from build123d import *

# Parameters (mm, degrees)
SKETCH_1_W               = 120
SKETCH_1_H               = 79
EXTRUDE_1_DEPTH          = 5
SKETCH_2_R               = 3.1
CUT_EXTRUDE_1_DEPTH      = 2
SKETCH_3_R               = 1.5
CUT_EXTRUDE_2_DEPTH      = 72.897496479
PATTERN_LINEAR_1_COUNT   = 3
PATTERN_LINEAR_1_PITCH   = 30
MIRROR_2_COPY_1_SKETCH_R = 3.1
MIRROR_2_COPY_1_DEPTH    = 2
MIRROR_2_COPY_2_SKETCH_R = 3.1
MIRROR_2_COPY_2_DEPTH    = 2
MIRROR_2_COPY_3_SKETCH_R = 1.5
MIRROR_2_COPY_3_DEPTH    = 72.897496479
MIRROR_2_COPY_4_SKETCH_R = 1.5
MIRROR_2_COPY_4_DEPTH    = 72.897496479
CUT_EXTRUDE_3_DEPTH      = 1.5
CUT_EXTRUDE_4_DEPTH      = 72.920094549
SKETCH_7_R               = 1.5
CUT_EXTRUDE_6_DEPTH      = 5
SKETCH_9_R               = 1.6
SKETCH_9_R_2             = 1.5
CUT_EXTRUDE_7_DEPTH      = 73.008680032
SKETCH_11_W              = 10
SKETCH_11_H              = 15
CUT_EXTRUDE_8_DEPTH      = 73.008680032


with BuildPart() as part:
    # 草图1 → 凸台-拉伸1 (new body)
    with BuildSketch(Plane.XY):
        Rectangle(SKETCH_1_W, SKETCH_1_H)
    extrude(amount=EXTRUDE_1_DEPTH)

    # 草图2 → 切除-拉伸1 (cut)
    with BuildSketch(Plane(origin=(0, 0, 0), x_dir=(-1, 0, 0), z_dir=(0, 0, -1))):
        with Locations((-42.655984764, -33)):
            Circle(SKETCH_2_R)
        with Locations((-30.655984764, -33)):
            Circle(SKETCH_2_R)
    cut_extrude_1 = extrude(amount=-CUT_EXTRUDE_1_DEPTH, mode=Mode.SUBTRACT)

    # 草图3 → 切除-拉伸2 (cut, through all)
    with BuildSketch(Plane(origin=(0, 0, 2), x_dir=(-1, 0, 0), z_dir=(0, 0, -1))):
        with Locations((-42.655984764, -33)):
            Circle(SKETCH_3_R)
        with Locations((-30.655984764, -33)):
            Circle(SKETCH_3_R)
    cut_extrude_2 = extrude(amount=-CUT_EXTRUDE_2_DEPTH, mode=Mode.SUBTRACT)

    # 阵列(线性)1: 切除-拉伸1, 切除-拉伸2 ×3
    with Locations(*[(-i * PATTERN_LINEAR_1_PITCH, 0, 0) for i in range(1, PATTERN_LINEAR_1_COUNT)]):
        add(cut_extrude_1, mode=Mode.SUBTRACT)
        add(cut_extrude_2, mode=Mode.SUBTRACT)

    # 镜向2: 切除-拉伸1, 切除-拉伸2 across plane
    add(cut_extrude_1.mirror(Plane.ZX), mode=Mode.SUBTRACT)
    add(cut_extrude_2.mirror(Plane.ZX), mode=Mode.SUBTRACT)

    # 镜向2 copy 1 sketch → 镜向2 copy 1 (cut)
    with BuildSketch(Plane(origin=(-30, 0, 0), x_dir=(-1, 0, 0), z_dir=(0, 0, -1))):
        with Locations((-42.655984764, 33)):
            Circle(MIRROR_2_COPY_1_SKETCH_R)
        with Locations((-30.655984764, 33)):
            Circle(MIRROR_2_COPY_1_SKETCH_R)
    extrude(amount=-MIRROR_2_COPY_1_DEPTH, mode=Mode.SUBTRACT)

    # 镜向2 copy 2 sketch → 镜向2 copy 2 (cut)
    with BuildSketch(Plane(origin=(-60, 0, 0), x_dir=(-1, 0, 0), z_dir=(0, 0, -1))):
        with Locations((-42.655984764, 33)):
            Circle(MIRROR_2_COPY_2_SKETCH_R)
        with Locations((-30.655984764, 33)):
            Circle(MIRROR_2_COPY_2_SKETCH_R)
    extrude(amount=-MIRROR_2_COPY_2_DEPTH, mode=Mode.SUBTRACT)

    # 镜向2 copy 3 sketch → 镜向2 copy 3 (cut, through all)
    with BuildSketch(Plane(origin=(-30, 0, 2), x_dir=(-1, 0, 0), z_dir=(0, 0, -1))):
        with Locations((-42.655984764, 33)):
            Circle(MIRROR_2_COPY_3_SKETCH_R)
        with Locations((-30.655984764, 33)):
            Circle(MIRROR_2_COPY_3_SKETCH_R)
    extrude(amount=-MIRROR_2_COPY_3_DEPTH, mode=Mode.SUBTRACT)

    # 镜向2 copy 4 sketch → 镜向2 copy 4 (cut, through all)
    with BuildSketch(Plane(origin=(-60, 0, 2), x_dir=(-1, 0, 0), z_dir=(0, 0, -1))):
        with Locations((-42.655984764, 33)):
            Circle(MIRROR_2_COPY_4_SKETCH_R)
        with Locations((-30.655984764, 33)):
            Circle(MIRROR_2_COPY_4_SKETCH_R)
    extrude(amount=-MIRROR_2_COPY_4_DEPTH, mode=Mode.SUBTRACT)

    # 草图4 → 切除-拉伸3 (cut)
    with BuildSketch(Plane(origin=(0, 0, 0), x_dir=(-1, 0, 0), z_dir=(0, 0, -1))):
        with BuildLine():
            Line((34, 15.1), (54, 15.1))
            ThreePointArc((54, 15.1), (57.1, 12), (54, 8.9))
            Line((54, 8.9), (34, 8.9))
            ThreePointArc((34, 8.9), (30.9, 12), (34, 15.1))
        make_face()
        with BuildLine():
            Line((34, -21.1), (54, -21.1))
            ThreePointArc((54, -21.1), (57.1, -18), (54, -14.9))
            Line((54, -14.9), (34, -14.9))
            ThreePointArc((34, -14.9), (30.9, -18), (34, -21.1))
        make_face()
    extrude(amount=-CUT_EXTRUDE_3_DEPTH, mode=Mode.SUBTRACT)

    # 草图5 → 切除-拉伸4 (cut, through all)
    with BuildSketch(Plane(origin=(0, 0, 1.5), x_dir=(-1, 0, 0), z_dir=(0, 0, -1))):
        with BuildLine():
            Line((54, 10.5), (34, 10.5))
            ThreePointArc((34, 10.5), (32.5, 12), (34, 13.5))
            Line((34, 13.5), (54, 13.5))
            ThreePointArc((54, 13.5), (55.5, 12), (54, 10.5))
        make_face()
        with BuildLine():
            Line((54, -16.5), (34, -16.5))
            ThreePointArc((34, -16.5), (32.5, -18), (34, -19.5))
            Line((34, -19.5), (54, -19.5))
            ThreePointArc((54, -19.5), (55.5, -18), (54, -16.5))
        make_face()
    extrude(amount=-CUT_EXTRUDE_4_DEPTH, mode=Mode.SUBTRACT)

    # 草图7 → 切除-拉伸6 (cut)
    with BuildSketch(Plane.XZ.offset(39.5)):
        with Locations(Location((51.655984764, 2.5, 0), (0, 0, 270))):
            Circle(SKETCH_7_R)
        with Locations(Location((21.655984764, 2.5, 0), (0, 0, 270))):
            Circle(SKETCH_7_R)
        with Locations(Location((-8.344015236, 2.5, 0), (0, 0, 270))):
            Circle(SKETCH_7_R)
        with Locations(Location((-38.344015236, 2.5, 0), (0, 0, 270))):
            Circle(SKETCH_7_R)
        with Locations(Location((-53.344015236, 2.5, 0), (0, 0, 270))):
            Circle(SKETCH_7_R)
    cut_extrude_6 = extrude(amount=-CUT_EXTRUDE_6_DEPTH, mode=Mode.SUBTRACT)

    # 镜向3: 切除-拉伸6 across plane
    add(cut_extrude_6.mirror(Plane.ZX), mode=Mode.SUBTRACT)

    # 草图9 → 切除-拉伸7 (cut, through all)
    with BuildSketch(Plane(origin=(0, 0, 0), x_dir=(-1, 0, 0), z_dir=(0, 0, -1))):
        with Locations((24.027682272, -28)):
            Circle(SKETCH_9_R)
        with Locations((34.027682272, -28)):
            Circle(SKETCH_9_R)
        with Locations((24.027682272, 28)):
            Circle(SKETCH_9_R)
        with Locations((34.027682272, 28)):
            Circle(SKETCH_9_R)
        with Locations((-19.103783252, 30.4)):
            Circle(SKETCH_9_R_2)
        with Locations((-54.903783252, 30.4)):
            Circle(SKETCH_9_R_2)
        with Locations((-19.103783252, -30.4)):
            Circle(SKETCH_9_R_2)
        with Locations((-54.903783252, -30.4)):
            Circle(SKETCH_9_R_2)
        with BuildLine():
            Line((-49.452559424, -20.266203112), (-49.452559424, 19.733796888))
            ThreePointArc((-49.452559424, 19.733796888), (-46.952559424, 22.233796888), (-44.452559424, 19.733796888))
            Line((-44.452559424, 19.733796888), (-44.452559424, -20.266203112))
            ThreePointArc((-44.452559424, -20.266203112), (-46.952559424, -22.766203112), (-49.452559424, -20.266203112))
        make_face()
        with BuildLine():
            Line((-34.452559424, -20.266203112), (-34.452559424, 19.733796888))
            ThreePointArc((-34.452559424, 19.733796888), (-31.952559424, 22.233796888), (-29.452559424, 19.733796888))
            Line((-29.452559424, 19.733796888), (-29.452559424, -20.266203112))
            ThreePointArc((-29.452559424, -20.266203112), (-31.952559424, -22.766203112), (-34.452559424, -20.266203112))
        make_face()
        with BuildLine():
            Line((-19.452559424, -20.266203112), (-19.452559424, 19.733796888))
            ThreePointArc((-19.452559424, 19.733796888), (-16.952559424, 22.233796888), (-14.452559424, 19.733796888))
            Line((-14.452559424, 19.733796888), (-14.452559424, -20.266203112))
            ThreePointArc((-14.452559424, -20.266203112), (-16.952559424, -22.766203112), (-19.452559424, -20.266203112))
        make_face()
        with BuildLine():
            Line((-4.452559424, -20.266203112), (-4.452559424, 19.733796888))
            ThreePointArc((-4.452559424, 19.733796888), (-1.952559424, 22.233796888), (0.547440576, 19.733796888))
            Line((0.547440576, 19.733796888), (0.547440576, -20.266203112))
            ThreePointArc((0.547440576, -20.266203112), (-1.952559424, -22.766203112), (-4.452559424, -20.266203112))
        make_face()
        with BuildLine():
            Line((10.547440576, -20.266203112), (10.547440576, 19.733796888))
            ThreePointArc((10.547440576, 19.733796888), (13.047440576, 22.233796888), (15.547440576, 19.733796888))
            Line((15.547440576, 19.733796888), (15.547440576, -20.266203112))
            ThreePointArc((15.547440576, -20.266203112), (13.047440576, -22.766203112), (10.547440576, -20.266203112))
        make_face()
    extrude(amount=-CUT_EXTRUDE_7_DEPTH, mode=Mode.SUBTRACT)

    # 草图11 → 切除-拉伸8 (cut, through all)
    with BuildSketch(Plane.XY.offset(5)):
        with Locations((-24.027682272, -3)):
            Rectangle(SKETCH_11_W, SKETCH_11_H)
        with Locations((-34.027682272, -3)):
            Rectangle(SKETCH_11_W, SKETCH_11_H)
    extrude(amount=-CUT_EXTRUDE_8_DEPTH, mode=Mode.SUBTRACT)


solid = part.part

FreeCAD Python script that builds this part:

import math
import FreeCAD as App
import Part
import Sketcher

V = App.Vector
Q = App.Units.Quantity


def add_polygon(sketch, points):
    """Adds a closed chain of lines whose ends are joined by coincident constraints."""
    first, n = sketch.GeometryCount, len(points)
    for a, b in zip(points, points[1:] + points[:1]):
        sketch.addGeometry(Part.LineSegment(App.Vector(*a, 0), App.Vector(*b, 0)), False)
    for i in range(n):
        sketch.addConstraint(Sketcher.Constraint("Coincident", first + i, 2, first + (i + 1) % n, 1))

doc = App.newDocument("Part")
body = doc.addObject("PartDesign::Body", "Body")

# Sketch on XY plane
sketch1 = body.newObject("Sketcher::SketchObject", "Sketch")
sketch1.AttachmentSupport = (doc.getObject("XY_Plane"), [""])
sketch1.MapMode = "FlatFace"
add_polygon(sketch1, [(-60, 40), (-60, -40), (60, -40), (60, 40)])  # lines 0-3
sketch1.addConstraint(Sketcher.Constraint("Vertical", 0))
sketch1.addConstraint(Sketcher.Constraint("Horizontal", 1))
sketch1.addConstraint(Sketcher.Constraint("Vertical", 2))
sketch1.addConstraint(Sketcher.Constraint("Horizontal", 3))
sketch1.addConstraint(Sketcher.Constraint("Symmetric", 0, 2, 2, 2, -1, 1))
sketch1.addConstraint(Sketcher.Constraint("DistanceX", 1, 1, 1, 2, Q("120 mm")))
sketch1.addConstraint(Sketcher.Constraint("DistanceY", 0, 2, 0, 1, Q("79 mm")))
pad1 = body.newObject("PartDesign::Pad", "Pad")
pad1.Profile = sketch1
pad1.Length = 5

# Sketch on XY plane
sketch2 = body.newObject("Sketcher::SketchObject", "Sketch001")
sketch2.AttachmentSupport = (doc.getObject("XY_Plane"), [""])
sketch2.MapMode = "FlatFace"
sketch2.addGeometry(Part.Circle(V(42.7, -33, 0), V(0, 0, 1), 3.1), False)
sketch2.addGeometry(Part.Circle(V(30.7, -33, 0), V(0, 0, 1), 3.1), False)
sketch2.addConstraint(Sketcher.Constraint("Equal", 0, 1))
sketch2.addConstraint(Sketcher.Constraint("Horizontal", 0, 3, 1, 3))
sketch2.addConstraint(Sketcher.Constraint("Diameter", 0, Q("6.2 mm")))
sketch2.addConstraint(Sketcher.Constraint("DistanceY", 0, 3, -1, 1, Q("33 mm")))
sketch2.addConstraint(Sketcher.Constraint("DistanceX", 1, 3, 0, 3, Q("12 mm")))
sketch2.addConstraint(Sketcher.Constraint("DistanceX", -1, 1, 0, 3, Q("42.655985 mm")))
pocket1 = body.newObject("PartDesign::Pocket", "Pocket")
pocket1.Profile = sketch2
pocket1.Length = 2
pocket1.Reversed = True

# Sketch on XY plane
sketch3 = body.newObject("Sketcher::SketchObject", "Sketch002")
sketch3.AttachmentSupport = (doc.getObject("XY_Plane"), [""])
sketch3.MapMode = "FlatFace"
sketch3.AttachmentOffset = App.Placement(V(0, 0, 2), App.Rotation())
sketch3.addGeometry(Part.Circle(V(42.7, -33, 0), V(0, 0, 1), 1.5), False)
sketch3.addGeometry(Part.Circle(V(30.7, -33, 0), V(0, 0, 1), 1.5), False)
sketch3.addConstraint(Sketcher.Constraint("Equal", 0, 1))
sketch3.addConstraint(Sketcher.Constraint("Horizontal", 0, 3, 1, 3))
sketch3.addConstraint(Sketcher.Constraint("Diameter", 0, Q("3 mm")))
sketch3.addConstraint(Sketcher.Constraint("DistanceY", 0, 3, -1, 1, Q("33 mm")))
sketch3.addConstraint(Sketcher.Constraint("DistanceX", 1, 3, 0, 3, Q("12 mm")))
sketch3.addConstraint(Sketcher.Constraint("DistanceX", -1, 1, 0, 3, Q("42.655985 mm")))
pocket2 = body.newObject("PartDesign::Pocket", "Pocket001")
pocket2.Profile = sketch3
pocket2.Type = "ThroughAll"
pocket2.Reversed = True
doc.recompute()

linearpattern = body.newObject("PartDesign::LinearPattern", "LinearPattern")
linearpattern.Originals = [pocket1, pocket2]
linearpattern.Direction = (doc.getObject("X_Axis"), [""])
linearpattern.Mode = "offset"
linearpattern.Offset = 30
linearpattern.Occurrences = 3
linearpattern.Reversed = True
body.Tip = linearpattern
doc.recompute()

mirrored = body.newObject("PartDesign::Mirrored", "Mirrored")
mirrored.Originals = [pocket1, pocket2]
mirrored.MirrorPlane = (doc.getObject("XZ_Plane"), [""])
body.Tip = mirrored

# Sketch on XY plane
sketch4 = body.newObject("Sketcher::SketchObject", "Sketch003")
sketch4.AttachmentSupport = (doc.getObject("XY_Plane"), [""])
sketch4.MapMode = "FlatFace"
sketch4.addGeometry(Part.Circle(V(12.7, 33, 0), V(0, 0, 1), 3.1), False)
sketch4.addGeometry(Part.Circle(V(0.7, 33, 0), V(0, 0, 1), 3.1), False)
sketch4.addConstraint(Sketcher.Constraint("Equal", 0, 1))
sketch4.addConstraint(Sketcher.Constraint("Horizontal", 0, 3, 1, 3))
sketch4.addConstraint(Sketcher.Constraint("Diameter", 0, Q("6.2 mm")))
sketch4.addConstraint(Sketcher.Constraint("DistanceY", -1, 1, 0, 3, Q("33 mm")))
sketch4.addConstraint(Sketcher.Constraint("DistanceX", 1, 3, 0, 3, Q("12 mm")))
sketch4.addConstraint(Sketcher.Constraint("DistanceX", -1, 1, 0, 3, Q("12.655985 mm")))
pocket3 = body.newObject("PartDesign::Pocket", "Pocket002")
pocket3.Profile = sketch4
pocket3.Length = 2
pocket3.Reversed = True

# Sketch on XY plane
sketch5 = body.newObject("Sketcher::SketchObject", "Sketch004")
sketch5.AttachmentSupport = (doc.getObject("XY_Plane"), [""])
sketch5.MapMode = "FlatFace"
sketch5.addGeometry(Part.Circle(V(-17.3, 33, 0), V(0, 0, 1), 3.1), False)
sketch5.addGeometry(Part.Circle(V(-29.3, 33, 0), V(0, 0, 1), 3.1), False)
sketch5.addConstraint(Sketcher.Constraint("Equal", 0, 1))
sketch5.addConstraint(Sketcher.Constraint("Horizontal", 0, 3, 1, 3))
sketch5.addConstraint(Sketcher.Constraint("Diameter", 0, Q("6.2 mm")))
sketch5.addConstraint(Sketcher.Constraint("DistanceY", -1, 1, 0, 3, Q("33 mm")))
sketch5.addConstraint(Sketcher.Constraint("DistanceX", 1, 3, 0, 3, Q("12 mm")))
sketch5.addConstraint(Sketcher.Constraint("DistanceX", 0, 3, -1, 1, Q("17.344015 mm")))
pocket4 = body.newObject("PartDesign::Pocket", "Pocket003")
pocket4.Profile = sketch5
pocket4.Length = 2
pocket4.Reversed = True

# Sketch on XY plane
sketch6 = body.newObject("Sketcher::SketchObject", "Sketch005")
sketch6.AttachmentSupport = (doc.getObject("XY_Plane"), [""])
sketch6.MapMode = "FlatFace"
sketch6.AttachmentOffset = App.Placement(V(0, 0, 2), App.Rotation())
sketch6.addGeometry(Part.Circle(V(12.7, 33, 0), V(0, 0, 1), 1.5), False)
sketch6.addGeometry(Part.Circle(V(0.7, 33, 0), V(0, 0, 1), 1.5), False)
sketch6.addConstraint(Sketcher.Constraint("Equal", 0, 1))
sketch6.addConstraint(Sketcher.Constraint("Horizontal", 0, 3, 1, 3))
sketch6.addConstraint(Sketcher.Constraint("Diameter", 0, Q("3 mm")))
sketch6.addConstraint(Sketcher.Constraint("DistanceY", -1, 1, 0, 3, Q("33 mm")))
sketch6.addConstraint(Sketcher.Constraint("DistanceX", 1, 3, 0, 3, Q("12 mm")))
sketch6.addConstraint(Sketcher.Constraint("DistanceX", -1, 1, 0, 3, Q("12.655985 mm")))
pocket5 = body.newObject("PartDesign::Pocket", "Pocket004")
pocket5.Profile = sketch6
pocket5.Type = "ThroughAll"
pocket5.Reversed = True

# Sketch on XY plane
sketch7 = body.newObject("Sketcher::SketchObject", "Sketch006")
sketch7.AttachmentSupport = (doc.getObject("XY_Plane"), [""])
sketch7.MapMode = "FlatFace"
sketch7.AttachmentOffset = App.Placement(V(0, 0, 2), App.Rotation())
sketch7.addGeometry(Part.Circle(V(-17.3, 33, 0), V(0, 0, 1), 1.5), False)
sketch7.addGeometry(Part.Circle(V(-29.3, 33, 0), V(0, 0, 1), 1.5), False)
sketch7.addConstraint(Sketcher.Constraint("Equal", 0, 1))
sketch7.addConstraint(Sketcher.Constraint("Horizontal", 0, 3, 1, 3))
sketch7.addConstraint(Sketcher.Constraint("Diameter", 0, Q("3 mm")))
sketch7.addConstraint(Sketcher.Constraint("DistanceY", -1, 1, 0, 3, Q("33 mm")))
sketch7.addConstraint(Sketcher.Constraint("DistanceX", 1, 3, 0, 3, Q("12 mm")))
sketch7.addConstraint(Sketcher.Constraint("DistanceX", 0, 3, -1, 1, Q("17.344015 mm")))
pocket6 = body.newObject("PartDesign::Pocket", "Pocket005")
pocket6.Profile = sketch7
pocket6.Type = "ThroughAll"
pocket6.Reversed = True

# Sketch on XY plane
sketch8 = body.newObject("Sketcher::SketchObject", "Sketch007")
sketch8.AttachmentSupport = (doc.getObject("XY_Plane"), [""])
sketch8.MapMode = "FlatFace"
sketch8.addGeometry(Part.LineSegment(V(-54, 15.1, 0), V(-34, 15.1, 0)), False)
sketch8.addGeometry(Part.ArcOfCircle(Part.Circle(V(-34, 12, 0), V(0, 0, 1), 3.1), math.radians(-90), math.radians(90)), False)
sketch8.addGeometry(Part.LineSegment(V(-34, 8.9, 0), V(-54, 8.9, 0)), False)
sketch8.addGeometry(Part.ArcOfCircle(Part.Circle(V(-54, 12, 0), V(0, 0, 1), 3.1), math.radians(90), math.radians(270)), False)
sketch8.addGeometry(Part.LineSegment(V(-34, -21.1, 0), V(-54, -21.1, 0)), False)
sketch8.addGeometry(Part.ArcOfCircle(Part.Circle(V(-54, -18, 0), V(0, 0, 1), 3.1), math.radians(90), math.radians(270)), False)
sketch8.addGeometry(Part.LineSegment(V(-54, -14.9, 0), V(-34, -14.9, 0)), False)
sketch8.addGeometry(Part.ArcOfCircle(Part.Circle(V(-34, -18, 0), V(0, 0, 1), 3.1), math.radians(-90), math.radians(90)), False)
sketch8.addConstraint(Sketcher.Constraint("Tangent", 0, 2, 1, 2))
sketch8.addConstraint(Sketcher.Constraint("Tangent", 1, 1, 2, 1))
sketch8.addConstraint(Sketcher.Constraint("Tangent", 2, 2, 3, 2))
sketch8.addConstraint(Sketcher.Constraint("Tangent", 3, 1, 0, 1))
sketch8.addConstraint(Sketcher.Constraint("Tangent", 4, 2, 5, 2))
sketch8.addConstraint(Sketcher.Constraint("Tangent", 5, 1, 6, 1))
sketch8.addConstraint(Sketcher.Constraint("Tangent", 6, 2, 7, 2))
sketch8.addConstraint(Sketcher.Constraint("Tangent", 7, 1, 4, 1))
sketch8.addConstraint(Sketcher.Constraint("Horizontal", 0))
sketch8.addConstraint(Sketcher.Constraint("Horizontal", 2))
sketch8.addConstraint(Sketcher.Constraint("Horizontal", 4))
sketch8.addConstraint(Sketcher.Constraint("Horizontal", 6))
sketch8.addConstraint(Sketcher.Constraint("Equal", 3, 5))
sketch8.addConstraint(Sketcher.Constraint("Vertical", 3, 3, 5, 3))
sketch8.addConstraint(Sketcher.Constraint("Vertical", 1, 3, 7, 3))
sketch8.addConstraint(Sketcher.Constraint("Radius", 1, Q("3.1 mm")))
sketch8.addConstraint(Sketcher.Constraint("DistanceX", 0, 1, 0, 2, Q("20 mm")))
sketch8.addConstraint(Sketcher.Constraint("DistanceX", 1, 3, -1, 1, Q("34 mm")))
sketch8.addConstraint(Sketcher.Constraint("DistanceY", -1, 1, 1, 3, Q("12 mm")))
sketch8.addConstraint(Sketcher.Constraint("DistanceY", 5, 3, -1, 1, Q("18 mm")))
pocket7 = body.newObject("PartDesign::Pocket", "Pocket006")
pocket7.Profile = sketch8
pocket7.Length = 1.5
pocket7.Reversed = True

# Sketch on XY plane
sketch9 = body.newObject("Sketcher::SketchObject", "Sketch008")
sketch9.AttachmentSupport = (doc.getObject("XY_Plane"), [""])
sketch9.MapMode = "FlatFace"
sketch9.AttachmentOffset = App.Placement(V(0, 0, 1.5), App.Rotation())
sketch9.addGeometry(Part.LineSegment(V(-34, 10.5, 0), V(-54, 10.5, 0)), False)
sketch9.addGeometry(Part.ArcOfCircle(Part.Circle(V(-54, 12, 0), V(0, 0, 1), 1.5), math.radians(90), math.radians(270)), False)
sketch9.addGeometry(Part.LineSegment(V(-54, 13.5, 0), V(-34, 13.5, 0)), False)
sketch9.addGeometry(Part.ArcOfCircle(Part.Circle(V(-34, 12, 0), V(0, 0, 1), 1.5), math.radians(-90), math.radians(90)), False)
sketch9.addGeometry(Part.LineSegment(V(-54, -16.5, 0), V(-34, -16.5, 0)), False)
sketch9.addGeometry(Part.ArcOfCircle(Part.Circle(V(-34, -18, 0), V(0, 0, 1), 1.5), math.radians(-90), math.radians(90)), False)
sketch9.addGeometry(Part.LineSegment(V(-34, -19.5, 0), V(-54, -19.5, 0)), False)
sketch9.addGeometry(Part.ArcOfCircle(Part.Circle(V(-54, -18, 0), V(0, 0, 1), 1.5), math.radians(90), math.radians(270)), False)
sketch9.addConstraint(Sketcher.Constraint("Tangent", 0, 2, 1, 2))
sketch9.addConstraint(Sketcher.Constraint("Tangent", 1, 1, 2, 1))
sketch9.addConstraint(Sketcher.Constraint("Tangent", 2, 2, 3, 2))
sketch9.addConstraint(Sketcher.Constraint("Tangent", 3, 1, 0, 1))
sketch9.addConstraint(Sketcher.Constraint("Tangent", 4, 2, 5, 2))
sketch9.addConstraint(Sketcher.Constraint("Tangent", 5, 1, 6, 1))
sketch9.addConstraint(Sketcher.Constraint("Tangent", 6, 2, 7, 2))
sketch9.addConstraint(Sketcher.Constraint("Tangent", 7, 1, 4, 1))
sketch9.addConstraint(Sketcher.Constraint("Horizontal", 0))
sketch9.addConstraint(Sketcher.Constraint("Horizontal", 2))
sketch9.addConstraint(Sketcher.Constraint("Horizontal", 4))
sketch9.addConstraint(Sketcher.Constraint("Horizontal", 6))
sketch9.addConstraint(Sketcher.Constraint("Equal", 3, 5))
sketch9.addConstraint(Sketcher.Constraint("Vertical", 3, 3, 5, 3))
sketch9.addConstraint(Sketcher.Constraint("Vertical", 1, 3, 7, 3))
sketch9.addConstraint(Sketcher.Constraint("Radius", 1, Q("1.5 mm")))
sketch9.addConstraint(Sketcher.Constraint("DistanceX", 0, 2, 0, 1, Q("20 mm")))
sketch9.addConstraint(Sketcher.Constraint("DistanceX", 1, 3, -1, 1, Q("54 mm")))
sketch9.addConstraint(Sketcher.Constraint("DistanceY", -1, 1, 1, 3, Q("12 mm")))
sketch9.addConstraint(Sketcher.Constraint("DistanceY", 5, 3, -1, 1, Q("18 mm")))
pocket8 = body.newObject("PartDesign::Pocket", "Pocket007")
pocket8.Profile = sketch9
pocket8.Type = "ThroughAll"
pocket8.Reversed = True

# Sketch on XZ plane
sketch10 = body.newObject("Sketcher::SketchObject", "Sketch009")
sketch10.AttachmentSupport = (doc.getObject("XZ_Plane"), [""])
sketch10.MapMode = "FlatFace"
sketch10.AttachmentOffset = App.Placement(V(0, 0, 39.5), App.Rotation())
sketch10.addGeometry(Part.Circle(V(51.7, 2.5, 0), V(0, 0, 1), 1.5), False)
sketch10.addGeometry(Part.Circle(V(21.7, 2.5, 0), V(0, 0, 1), 1.5), False)
sketch10.addGeometry(Part.Circle(V(-8.3, 2.5, 0), V(0, 0, 1), 1.5), False)
sketch10.addGeometry(Part.Circle(V(-38.3, 2.5, 0), V(0, 0, 1), 1.5), False)
sketch10.addGeometry(Part.Circle(V(-53.3, 2.5, 0), V(0, 0, 1), 1.5), False)
sketch10.addConstraint(Sketcher.Constraint("Equal", 0, 1))
sketch10.addConstraint(Sketcher.Constraint("Equal", 1, 2))
sketch10.addConstraint(Sketcher.Constraint("Equal", 2, 3))
sketch10.addConstraint(Sketcher.Constraint("Equal", 3, 4))
sketch10.addConstraint(Sketcher.Constraint("Horizontal", 0, 3, 1, 3))
sketch10.addConstraint(Sketcher.Constraint("Horizontal", 1, 3, 2, 3))
sketch10.addConstraint(Sketcher.Constraint("Horizontal", 2, 3, 3, 3))
sketch10.addConstraint(Sketcher.Constraint("Horizontal", 3, 3, 4, 3))
sketch10.addConstraint(Sketcher.Constraint("Diameter", 0, Q("3 mm")))
sketch10.addConstraint(Sketcher.Constraint("DistanceX", 1, 3, 0, 3, Q("30 mm")))
sketch10.addConstraint(Sketcher.Constraint("DistanceX", 2, 3, 1, 3, Q("30 mm")))
sketch10.addConstraint(Sketcher.Constraint("DistanceX", 3, 3, 2, 3, Q("30 mm")))
sketch10.addConstraint(Sketcher.Constraint("DistanceX", 4, 3, 3, 3, Q("15 mm")))
sketch10.addConstraint(Sketcher.Constraint("DistanceY", -1, 1, 0, 3, Q("2.5 mm")))
sketch10.addConstraint(Sketcher.Constraint("DistanceX", -1, 1, 0, 3, Q("51.655985 mm")))
pocket9 = body.newObject("PartDesign::Pocket", "Pocket008")
pocket9.Profile = sketch10
pocket9.Length = 5
doc.recompute()

mirrored2 = body.newObject("PartDesign::Mirrored", "Mirrored001")
mirrored2.Originals = [pocket9]
mirrored2.MirrorPlane = (doc.getObject("XZ_Plane"), [""])
body.Tip = mirrored2

# Sketch on XY plane
sketch11 = body.newObject("Sketcher::SketchObject", "Sketch010")
sketch11.AttachmentSupport = (doc.getObject("XY_Plane"), [""])
sketch11.MapMode = "FlatFace"
sketch11.addGeometry(Part.Circle(V(-24, -28, 0), V(0, 0, 1), 1.6), False)
sketch11.addGeometry(Part.Circle(V(-34, -28, 0), V(0, 0, 1), 1.6), False)
sketch11.addGeometry(Part.Circle(V(-24, 28, 0), V(0, 0, 1), 1.6), False)
sketch11.addGeometry(Part.Circle(V(-34, 28, 0), V(0, 0, 1), 1.6), False)
sketch11.addGeometry(Part.Circle(V(19.1, 30.4, 0), V(0, 0, 1), 1.5), False)
sketch11.addGeometry(Part.Circle(V(54.9, 30.4, 0), V(0, 0, 1), 1.5), False)
sketch11.addGeometry(Part.Circle(V(19.1, -30.4, 0), V(0, 0, 1), 1.5), False)
sketch11.addGeometry(Part.Circle(V(54.9, -30.4, 0), V(0, 0, 1), 1.5), False)
sketch11.addGeometry(Part.LineSegment(V(49.5, 19.7, 0), V(49.5, -20.3, 0)), False)
sketch11.addGeometry(Part.ArcOfCircle(Part.Circle(V(47, -20.3, 0), V(0, 0, 1), 2.5), math.radians(180), math.radians(360)), False)
sketch11.addGeometry(Part.LineSegment(V(44.5, -20.3, 0), V(44.5, 19.7, 0)), False)
sketch11.addGeometry(Part.ArcOfCircle(Part.Circle(V(47, 19.7, 0), V(0, 0, 1), 2.5), math.radians(0), math.radians(180)), False)
sketch11.addGeometry(Part.LineSegment(V(34.5, 19.7, 0), V(34.5, -20.3, 0)), False)
sketch11.addGeometry(Part.ArcOfCircle(Part.Circle(V(32, -20.3, 0), V(0, 0, 1), 2.5), math.radians(180), math.radians(360)), False)
sketch11.addGeometry(Part.LineSegment(V(29.5, -20.3, 0), V(29.5, 19.7, 0)), False)
sketch11.addGeometry(Part.ArcOfCircle(Part.Circle(V(32, 19.7, 0), V(0, 0, 1), 2.5), math.radians(0), math.radians(180)), False)
sketch11.addGeometry(Part.LineSegment(V(19.5, 19.7, 0), V(19.5, -20.3, 0)), False)
sketch11.addGeometry(Part.ArcOfCircle(Part.Circle(V(17, -20.3, 0), V(0, 0, 1), 2.5), math.radians(180), math.radians(360)), False)
sketch11.addGeometry(Part.LineSegment(V(14.5, -20.3, 0), V(14.5, 19.7, 0)), False)
sketch11.addGeometry(Part.ArcOfCircle(Part.Circle(V(17, 19.7, 0), V(0, 0, 1), 2.5), math.radians(0), math.radians(180)), False)
sketch11.addGeometry(Part.LineSegment(V(4.5, 19.7, 0), V(4.5, -20.3, 0)), False)
sketch11.addGeometry(Part.ArcOfCircle(Part.Circle(V(2, -20.3, 0), V(0, 0, 1), 2.5), math.radians(180), math.radians(360)), False)
sketch11.addGeometry(Part.LineSegment(V(-0.5, -20.3, 0), V(-0.5, 19.7, 0)), False)
sketch11.addGeometry(Part.ArcOfCircle(Part.Circle(V(2, 19.7, 0), V(0, 0, 1), 2.5), math.radians(0), math.radians(180)), False)
sketch11.addGeometry(Part.LineSegment(V(-10.5, 19.7, 0), V(-10.5, -20.3, 0)), False)
sketch11.addGeometry(Part.ArcOfCircle(Part.Circle(V(-13, -20.3, 0), V(0, 0, 1), 2.5), math.radians(180), math.radians(360)), False)
sketch11.addGeometry(Part.LineSegment(V(-15.5, -20.3, 0), V(-15.5, 19.7, 0)), False)
sketch11.addGeometry(Part.ArcOfCircle(Part.Circle(V(-13, 19.7, 0), V(0, 0, 1), 2.5), math.radians(0), math.radians(180)), False)
sketch11.addConstraint(Sketcher.Constraint("Tangent", 8, 2, 9, 2))
sketch11.addConstraint(Sketcher.Constraint("Tangent", 9, 1, 10, 1))
sketch11.addConstraint(Sketcher.Constraint("Tangent", 10, 2, 11, 2))
sketch11.addConstraint(Sketcher.Constraint("Tangent", 11, 1, 8, 1))
sketch11.addConstraint(Sketcher.Constraint("Tangent", 12, 2, 13, 2))
sketch11.addConstraint(Sketcher.Constraint("Tangent", 13, 1, 14, 1))
sketch11.addConstraint(Sketcher.Constraint("Tangent", 14, 2, 15, 2))
sketch11.addConstraint(Sketcher.Constraint("Tangent", 15, 1, 12, 1))
sketch11.addConstraint(Sketcher.Constraint("Tangent", 16, 2, 17, 2))
sketch11.addConstraint(Sketcher.Constraint("Tangent", 17, 1, 18, 1))
sketch11.addConstraint(Sketcher.Constraint("Tangent", 18, 2, 19, 2))
sketch11.addConstraint(Sketcher.Constraint("Tangent", 19, 1, 16, 1))
sketch11.addConstraint(Sketcher.Constraint("Tangent", 20, 2, 21, 2))
sketch11.addConstraint(Sketcher.Constraint("Tangent", 21, 1, 22, 1))
sketch11.addConstraint(Sketcher.Constraint("Tangent", 22, 2, 23, 2))
sketch11.addConstraint(Sketcher.Constraint("Tangent", 23, 1, 20, 1))
sketch11.addConstraint(Sketcher.Constraint("Tangent", 24, 2, 25, 2))
sketch11.addConstraint(Sketcher.Constraint("Tangent", 25, 1, 26, 1))
sketch11.addConstraint(Sketcher.Constraint("Tangent", 26, 2, 27, 2))
sketch11.addConstraint(Sketcher.Constraint("Tangent", 27, 1, 24, 1))
sketch11.addConstraint(Sketcher.Constraint("Vertical", 8))
sketch11.addConstraint(Sketcher.Constraint("Vertical", 10))
sketch11.addConstraint(Sketcher.Constraint("Vertical", 12))
sketch11.addConstraint(Sketcher.Constraint("Vertical", 14))
sketch11.addConstraint(Sketcher.Constraint("Vertical", 16))
sketch11.addConstraint(Sketcher.Constraint("Vertical", 18))
sketch11.addConstraint(Sketcher.Constraint("Vertical", 20))
sketch11.addConstraint(Sketcher.Constraint("Vertical", 22))
sketch11.addConstraint(Sketcher.Constraint("Vertical", 24))
sketch11.addConstraint(Sketcher.Constraint("Vertical", 26))
sketch11.addConstraint(Sketcher.Constraint("Equal", 0, 1))
sketch11.addConstraint(Sketcher.Constraint("Equal", 1, 2))
sketch11.addConstraint(Sketcher.Constraint("Equal", 2, 3))
sketch11.addConstraint(Sketcher.Constraint("Equal", 4, 5))
sketch11.addConstraint(Sketcher.Constraint("Equal", 5, 6))
sketch11.addConstraint(Sketcher.Constraint("Equal", 6, 7))
sketch11.addConstraint(Sketcher.Constraint("Equal", 11, 13))
sketch11.addConstraint(Sketcher.Constraint("Equal", 15, 17))
sketch11.addConstraint(Sketcher.Constraint("Equal", 19, 21))
sketch11.addConstraint(Sketcher.Constraint("Equal", 23, 25))
sketch11.addConstraint(Sketcher.Constraint("Symmetric", 0, 3, 2, 3, -1))
sketch11.addConstraint(Sketcher.Constraint("Symmetric", 1, 3, 3, 3, -1))
sketch11.addConstraint(Sketcher.Constraint("Symmetric", 4, 3, 6, 3, -1))
sketch11.addConstraint(Sketcher.Constraint("Symmetric", 5, 3, 7, 3, -1))
sketch11.addConstraint(Sketcher.Constraint("Horizontal", 0, 3, 1, 3))
sketch11.addConstraint(Sketcher.Constraint("Horizontal", 4, 3, 5, 3))
sketch11.addConstraint(Sketcher.Constraint("Horizontal", 9, 3, 13, 3))
sketch11.addConstraint(Sketcher.Constraint("Horizontal", 11, 3, 15, 3))
sketch11.addConstraint(Sketcher.Constraint("Horizontal", 13, 3, 17, 3))
sketch11.addConstraint(Sketcher.Constraint("Horizontal", 15, 3, 19, 3))
sketch11.addConstraint(Sketcher.Constraint("Horizontal", 17, 3, 21, 3))
sketch11.addConstraint(Sketcher.Constraint("Horizontal", 19, 3, 23, 3))
sketch11.addConstraint(Sketcher.Constraint("Horizontal", 21, 3, 25, 3))
sketch11.addConstraint(Sketcher.Constraint("Horizontal", 23, 3, 27, 3))
sketch11.addConstraint(Sketcher.Constraint("Diameter", 4, Q("3 mm")))
sketch11.addConstraint(Sketcher.Constraint("Diameter", 0, Q("3.2 mm")))
sketch11.addConstraint(Sketcher.Constraint("Radius", 9, Q("2.5 mm")))
sketch11.addConstraint(Sketcher.Constraint("DistanceY", 8, 2, 8, 1, Q("40 mm")))
sketch11.addConstraint(Sketcher.Constraint("DistanceY", 0, 3, -1, 1, Q("28 mm")))
sketch11.addConstraint(Sketcher.Constraint("DistanceX", 1, 3, 0, 3, Q("10 mm")))
sketch11.addConstraint(Sketcher.Constraint("DistanceX", 13, 3, 9, 3, Q("15 mm")))
sketch11.addConstraint(Sketcher.Constraint("DistanceX", 17, 3, 13, 3, Q("15 mm")))
sketch11.addConstraint(Sketcher.Constraint("DistanceX", 21, 3, 17, 3, Q("15 mm")))
sketch11.addConstraint(Sketcher.Constraint("DistanceX", 25, 3, 21, 3, Q("15 mm")))
sketch11.addConstraint(Sketcher.Constraint("DistanceY", -1, 1, 4, 3, Q("30.4 mm")))
sketch11.addConstraint(Sketcher.Constraint("DistanceX", 4, 3, 5, 3, Q("35.8 mm")))
sketch11.addConstraint(Sketcher.Constraint("DistanceX", -1, 1, 9, 3, Q("46.952559 mm")))
sketch11.addConstraint(Sketcher.Constraint("DistanceX", 0, 3, 9, 3, Q("70.980242 mm")))
sketch11.addConstraint(Sketcher.Constraint("DistanceX", -1, 1, 4, 3, Q("19.103783 mm")))
sketch11.addConstraint(Sketcher.Constraint("DistanceY", 9, 3, -1, 1, Q("20.266203 mm")))
pocket10 = body.newObject("PartDesign::Pocket", "Pocket009")
pocket10.Profile = sketch11
pocket10.Type = "ThroughAll"
pocket10.Reversed = True

# Sketch on XY plane
sketch12 = body.newObject("Sketcher::SketchObject", "Sketch011")
sketch12.AttachmentSupport = (doc.getObject("XY_Plane"), [""])
sketch12.MapMode = "FlatFace"
sketch12.AttachmentOffset = App.Placement(V(0, 0, 5), App.Rotation())
add_polygon(sketch12, [(-19, -10), (-19, 4), (-39, 4), (-39, -10)])  # lines 0-3
sketch12.addConstraint(Sketcher.Constraint("Vertical", 0))
sketch12.addConstraint(Sketcher.Constraint("Horizontal", 1))
sketch12.addConstraint(Sketcher.Constraint("Vertical", 2))
sketch12.addConstraint(Sketcher.Constraint("Horizontal", 3))
sketch12.addConstraint(Sketcher.Constraint("DistanceX", 1, 2, 1, 1, Q("20 mm")))
sketch12.addConstraint(Sketcher.Constraint("DistanceY", 0, 1, 0, 2, Q("15 mm")))
sketch12.addConstraint(Sketcher.Constraint("DistanceY", -1, 1, 0, 2, Q("4.5 mm")))
sketch12.addConstraint(Sketcher.Constraint("DistanceX", 0, 2, -1, 1, Q("19.027682 mm")))
pocket11 = body.newObject("PartDesign::Pocket", "Pocket010")
pocket11.Profile = sketch12
pocket11.Type = "ThroughAll"

doc.recompute()
